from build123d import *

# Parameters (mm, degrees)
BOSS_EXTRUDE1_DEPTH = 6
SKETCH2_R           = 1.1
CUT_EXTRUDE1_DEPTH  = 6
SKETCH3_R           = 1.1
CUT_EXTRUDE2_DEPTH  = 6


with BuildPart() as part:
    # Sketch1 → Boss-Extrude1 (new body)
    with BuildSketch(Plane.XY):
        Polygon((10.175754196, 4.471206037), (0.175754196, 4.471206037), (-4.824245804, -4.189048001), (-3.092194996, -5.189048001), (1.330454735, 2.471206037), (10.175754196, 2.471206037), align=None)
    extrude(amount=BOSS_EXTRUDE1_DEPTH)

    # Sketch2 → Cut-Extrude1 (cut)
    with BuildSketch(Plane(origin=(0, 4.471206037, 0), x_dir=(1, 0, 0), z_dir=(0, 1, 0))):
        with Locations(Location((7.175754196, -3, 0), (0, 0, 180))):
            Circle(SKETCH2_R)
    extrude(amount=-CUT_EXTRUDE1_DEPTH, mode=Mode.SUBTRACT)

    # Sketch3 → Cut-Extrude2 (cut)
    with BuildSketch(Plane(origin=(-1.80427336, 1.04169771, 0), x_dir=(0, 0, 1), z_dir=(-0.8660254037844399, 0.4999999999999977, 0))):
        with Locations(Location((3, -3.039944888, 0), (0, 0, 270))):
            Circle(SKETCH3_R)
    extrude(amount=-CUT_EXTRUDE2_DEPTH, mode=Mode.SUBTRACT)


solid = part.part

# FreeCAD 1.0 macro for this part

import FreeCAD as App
import Part
import Sketcher
Q = App.Units.Quantity

doc = App.newDocument("Part")
body = doc.addObject("PartDesign::Body", "Body")

# Sketch on XY plane
sketch1 = body.newObject("Sketcher::SketchObject", "Sketch")
sketch1.AttachmentSupport = (doc.getObject("XY_Plane"), [""])
sketch1.MapMode = "FlatFace"
sketch1.addGeometry(Part.LineSegment(App.Vector(10.2, 4.5, 0), App.Vector(0.2, 4.5, 0)), False)
sketch1.addGeometry(Part.LineSegment(App.Vector(0.2, 4.5, 0), App.Vector(-4.8, -4.2, 0)), False)
sketch1.addGeometry(Part.LineSegment(App.Vector(-4.8, -4.2, 0), App.Vector(-3.1, -5.2, 0)), False)
sketch1.addGeometry(Part.LineSegment(App.Vector(-3.1, -5.2, 0), App.Vector(1.3, 2.5, 0)), False)
sketch1.addGeometry(Part.LineSegment(App.Vector(1.3, 2.5, 0), App.Vector(10.2, 2.5, 0)), False)
sketch1.addGeometry(Part.LineSegment(App.Vector(10.2, 2.5, 0), App.Vector(10.2, 4.5, 0)), False)
sketch1.addConstraint(Sketcher.Constraint("Coincident", 0, 2, 1, 1))
sketch1.addConstraint(Sketcher.Constraint("Coincident", 1, 2, 2, 1))
sketch1.addConstraint(Sketcher.Constraint("Coincident", 2, 2, 3, 1))
sketch1.addConstraint(Sketcher.Constraint("Coincident", 3, 2, 4, 1))
sketch1.addConstraint(Sketcher.Constraint("Coincident", 4, 2, 5, 1))
sketch1.addConstraint(Sketcher.Constraint("Coincident", 5, 2, 0, 1))
sketch1.addConstraint(Sketcher.Constraint("Horizontal", 0))
sketch1.addConstraint(Sketcher.Constraint("Horizontal", 4))
sketch1.addConstraint(Sketcher.Constraint("Vertical", 5))
sketch1.addConstraint(Sketcher.Constraint("Perpendicular", 1, 2))
sketch1.addConstraint(Sketcher.Constraint("Perpendicular", 2, 3))
sketch1.addConstraint(Sketcher.Constraint("DistanceX", 0, 2, 0, 1, 10.0))
sketch1.addConstraint(Sketcher.Constraint("DistanceY", 5, 1, 5, 2, 2.0))
sketch1.addConstraint(Sketcher.Constraint("Angle", 1, Q("-120 deg")))
sketch1.addConstraint(Sketcher.Constraint("Distance", 1, 10.0))
sketch1.addConstraint(Sketcher.Constraint("Distance", 2, 2.0))
sketch1.addConstraint(Sketcher.Constraint("DistanceY", 1, 2, -1, 1, 4.189048))
sketch1.addConstraint(Sketcher.Constraint("DistanceX", -1, 1, 0, 2, 0.175754))
pad1 = body.newObject("PartDesign::Pad", "Pad")
pad1.Profile = sketch1
pad1.Length = 6

# Sketch on XZ plane
sketch2 = body.newObject("Sketcher::SketchObject", "Sketch001")
sketch2.AttachmentSupport = (doc.getObject("XZ_Plane"), [""])
sketch2.MapMode = "FlatFace"
sketch2.AttachmentOffset = App.Placement(App.Vector(0, 0, -4.471206), App.Rotation())
sketch2.addGeometry(Part.Circle(App.Vector(7.2, 3, 0), App.Vector(0, 0, 1), 1.1), False)
sketch2.addConstraint(Sketcher.Constraint("Diameter", 0, 2.2))
sketch2.addConstraint(Sketcher.Constraint("DistanceY", -1, 1, 0, 3, 3.0))
sketch2.addConstraint(Sketcher.Constraint("DistanceX", -1, 1, 0, 3, 7.175754))
pocket1 = body.newObject("PartDesign::Pocket", "Pocket")
pocket1.Profile = sketch2
pocket1.Length = 6
pocket1.Reversed = True

# Sketch on an angled plane
sketch3 = body.newObject("Sketcher::SketchObject", "Sketch002")
sketch3.Placement = App.Placement(App.Vector(-1.804273, 1.041698, 0), App.Rotation(App.Vector(0, 0, 1), App.Vector(0.5, 0.866025404, 0), App.Vector(-0.866025404, 0.5, 0), "ZXY"))
sketch3.addGeometry(Part.Circle(App.Vector(3, -3, 0), App.Vector(0, 0, 1), 1.1), False)
sketch3.addConstraint(Sketcher.Constraint("Diameter", 0, 2.2))
sketch3.addConstraint(Sketcher.Constraint("DistanceX", -1, 1, 0, 3, 3.0))
sketch3.addConstraint(Sketcher.Constraint("DistanceY", 0, 3, -1, 1, 3.039945))
pocket2 = body.newObject("PartDesign::Pocket", "Pocket001")
pocket2.Profile = sketch3
pocket2.Length = 6

doc.recompute()
